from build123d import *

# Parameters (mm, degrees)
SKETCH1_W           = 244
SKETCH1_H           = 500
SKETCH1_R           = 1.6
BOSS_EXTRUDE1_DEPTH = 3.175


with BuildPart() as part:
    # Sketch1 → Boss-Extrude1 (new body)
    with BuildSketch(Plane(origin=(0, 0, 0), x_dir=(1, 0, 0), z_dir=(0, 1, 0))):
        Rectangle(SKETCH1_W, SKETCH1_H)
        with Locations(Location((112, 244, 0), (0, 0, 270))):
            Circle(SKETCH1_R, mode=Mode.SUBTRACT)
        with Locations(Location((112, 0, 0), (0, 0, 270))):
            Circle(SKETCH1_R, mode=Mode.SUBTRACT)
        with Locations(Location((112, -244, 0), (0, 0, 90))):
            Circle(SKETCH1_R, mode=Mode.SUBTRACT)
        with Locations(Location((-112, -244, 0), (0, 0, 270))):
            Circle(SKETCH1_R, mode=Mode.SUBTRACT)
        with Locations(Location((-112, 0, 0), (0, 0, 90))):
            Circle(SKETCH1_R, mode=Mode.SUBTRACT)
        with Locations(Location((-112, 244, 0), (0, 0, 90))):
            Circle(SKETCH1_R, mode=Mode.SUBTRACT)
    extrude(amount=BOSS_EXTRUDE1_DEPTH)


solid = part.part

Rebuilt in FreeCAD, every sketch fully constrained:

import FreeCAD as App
import Part
import Sketcher

doc = App.newDocument("Part")
body = doc.addObject("PartDesign::Body", "Body")

# Sketch on XZ plane
sketch1 = body.newObject("Sketcher::SketchObject", "Sketch")
sketch1.AttachmentSupport = (doc.getObject("XZ_Plane"), [""])
sketch1.MapMode = "FlatFace"
sketch1.addGeometry([
    Part.LineSegment(App.Vector(-122, -250, 0), App.Vector(-122, 250, 0)),  # 0
    Part.LineSegment(App.Vector(-122, 250, 0), App.Vector(122, 250, 0)),  # 1
    Part.LineSegment(App.Vector(122, 250, 0), App.Vector(122, -250, 0)),  # 2
    Part.LineSegment(App.Vector(122, -250, 0), App.Vector(-122, -250, 0)),  # 3
    Part.Circle(App.Vector(-112, 244, 0), App.Vector(0, 0, 1), 1.6),  # 4
    Part.Circle(App.Vector(112, 244, 0), App.Vector(0, 0, 1), 1.6),  # 5
    Part.Circle(App.Vector(-112, 0, 0), App.Vector(0, 0, 1), 1.6),  # 6
    Part.Circle(App.Vector(-112, -244, 0), App.Vector(0, 0, 1), 1.6),  # 7
    Part.Circle(App.Vector(112, 0, 0), App.Vector(0, 0, 1), 1.6),  # 8
    Part.Circle(App.Vector(112, -244, 0), App.Vector(0, 0, 1), 1.6),  # 9
], False)
sketch1.addConstraint([
    Sketcher.Constraint("Coincident", 0, 2, 1, 1),
    Sketcher.Constraint("Coincident", 1, 2, 2, 1),
    Sketcher.Constraint("Coincident", 2, 2, 3, 1),
    Sketcher.Constraint("Coincident", 3, 2, 0, 1),
    Sketcher.Constraint("Vertical", 0),
    Sketcher.Constraint("Horizontal", 1),
    Sketcher.Constraint("Vertical", 2),
    Sketcher.Constraint("Horizontal", 3),
    Sketcher.Constraint("Equal", 4, 5),
    Sketcher.Constraint("Equal", 5, 6),
    Sketcher.Constraint("Equal", 6, 7),
    Sketcher.Constraint("Equal", 7, 8),
    Sketcher.Constraint("Equal", 8, 9),
    Sketcher.Constraint("Symmetric", 5, 3, 7, 3, -1, 1),
    Sketcher.Constraint("Symmetric", 6, 3, 8, 3, -1, 1),
    Sketcher.Constraint("Symmetric", 4, 3, 9, 3, -1, 1),
    Sketcher.Constraint("Symmetric", 0, 2, 2, 2, -1, 1),
    Sketcher.Constraint("Symmetric", 4, 3, 5, 3, -2),
    Sketcher.Constraint("PointOnObject", 6, 3, -1),
    Sketcher.Constraint("Vertical", 4, 3, 6, 3),
    Sketcher.Constraint("Diameter", 4, 3.2),
    Sketcher.Constraint("DistanceX", 1, 1, 1, 2, 244.0),
    Sketcher.Constraint("DistanceY", 0, 1, 0, 2, 500.0),
    Sketcher.Constraint("DistanceX", 4, 3, -1, 1, 112.0),
    Sketcher.Constraint("DistanceY", -1, 1, 4, 3, 244.0),
])
pad1 = body.newObject("PartDesign::Pad", "Pad")
pad1.Profile = sketch1
pad1.Length = 3.175
pad1.Reversed = True

doc.recompute()
